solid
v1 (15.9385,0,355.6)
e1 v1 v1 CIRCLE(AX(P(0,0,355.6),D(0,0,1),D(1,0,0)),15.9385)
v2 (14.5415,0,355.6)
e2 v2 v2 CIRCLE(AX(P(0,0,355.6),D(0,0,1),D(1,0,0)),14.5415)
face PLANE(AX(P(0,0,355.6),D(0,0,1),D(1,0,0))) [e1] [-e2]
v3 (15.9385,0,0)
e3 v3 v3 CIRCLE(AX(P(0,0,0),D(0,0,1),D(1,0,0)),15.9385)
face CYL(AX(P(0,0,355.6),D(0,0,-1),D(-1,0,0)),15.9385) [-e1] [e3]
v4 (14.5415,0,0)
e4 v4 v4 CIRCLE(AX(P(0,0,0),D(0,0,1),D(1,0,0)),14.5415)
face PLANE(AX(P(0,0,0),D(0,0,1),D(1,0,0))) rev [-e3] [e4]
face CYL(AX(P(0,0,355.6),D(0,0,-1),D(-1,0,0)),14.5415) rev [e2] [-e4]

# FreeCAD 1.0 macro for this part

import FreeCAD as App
import Part
import Sketcher
Q = App.Units.Quantity

doc = App.newDocument("Part")
params = doc.addObject("Spreadsheet::Sheet", "Params")
for row, (alias, value) in enumerate([
    ("sketch1_diameter", "1.255 in"),
    ("sketch1_diameter2", "1.145 in"),
    ("pad1_length", "14 in"),
], start=1):
    params.set(f"A{row}", alias)
    params.set(f"B{row}", "=" + value)
    params.setAlias(f"B{row}", alias)

body = doc.addObject("PartDesign::Body", "Body")

# Sketch on XY plane
sketch1 = body.newObject("Sketcher::SketchObject", "Sketch")
sketch1.AttachmentSupport = (doc.getObject("XY_Plane"), [""])
sketch1.MapMode = "FlatFace"
sketch1.addGeometry([
    Part.Circle(App.Vector(0, 0, 0), App.Vector(0, 0, 1), 16),
    Part.Circle(App.Vector(0, 0, 0), App.Vector(0, 0, 1), 15),
], False)
sketch1.addConstraint([
    Sketcher.Constraint("Coincident", 0, 3, -1, 1),
    Sketcher.Constraint("Coincident", 1, 3, -1, 1),
    Sketcher.Constraint("Diameter", 0, Q("1.255 in")),
    Sketcher.Constraint("Diameter", 1, Q("1.145 in")),
])
sketch1.setExpression("Constraints[2]", "Params.sketch1_diameter")
sketch1.setExpression("Constraints[3]", "Params.sketch1_diameter2")
pad1 = body.newObject("PartDesign::Pad", "Pad")
pad1.Profile = sketch1
pad1.setExpression("Length", "Params.pad1_length")

doc.recompute()
